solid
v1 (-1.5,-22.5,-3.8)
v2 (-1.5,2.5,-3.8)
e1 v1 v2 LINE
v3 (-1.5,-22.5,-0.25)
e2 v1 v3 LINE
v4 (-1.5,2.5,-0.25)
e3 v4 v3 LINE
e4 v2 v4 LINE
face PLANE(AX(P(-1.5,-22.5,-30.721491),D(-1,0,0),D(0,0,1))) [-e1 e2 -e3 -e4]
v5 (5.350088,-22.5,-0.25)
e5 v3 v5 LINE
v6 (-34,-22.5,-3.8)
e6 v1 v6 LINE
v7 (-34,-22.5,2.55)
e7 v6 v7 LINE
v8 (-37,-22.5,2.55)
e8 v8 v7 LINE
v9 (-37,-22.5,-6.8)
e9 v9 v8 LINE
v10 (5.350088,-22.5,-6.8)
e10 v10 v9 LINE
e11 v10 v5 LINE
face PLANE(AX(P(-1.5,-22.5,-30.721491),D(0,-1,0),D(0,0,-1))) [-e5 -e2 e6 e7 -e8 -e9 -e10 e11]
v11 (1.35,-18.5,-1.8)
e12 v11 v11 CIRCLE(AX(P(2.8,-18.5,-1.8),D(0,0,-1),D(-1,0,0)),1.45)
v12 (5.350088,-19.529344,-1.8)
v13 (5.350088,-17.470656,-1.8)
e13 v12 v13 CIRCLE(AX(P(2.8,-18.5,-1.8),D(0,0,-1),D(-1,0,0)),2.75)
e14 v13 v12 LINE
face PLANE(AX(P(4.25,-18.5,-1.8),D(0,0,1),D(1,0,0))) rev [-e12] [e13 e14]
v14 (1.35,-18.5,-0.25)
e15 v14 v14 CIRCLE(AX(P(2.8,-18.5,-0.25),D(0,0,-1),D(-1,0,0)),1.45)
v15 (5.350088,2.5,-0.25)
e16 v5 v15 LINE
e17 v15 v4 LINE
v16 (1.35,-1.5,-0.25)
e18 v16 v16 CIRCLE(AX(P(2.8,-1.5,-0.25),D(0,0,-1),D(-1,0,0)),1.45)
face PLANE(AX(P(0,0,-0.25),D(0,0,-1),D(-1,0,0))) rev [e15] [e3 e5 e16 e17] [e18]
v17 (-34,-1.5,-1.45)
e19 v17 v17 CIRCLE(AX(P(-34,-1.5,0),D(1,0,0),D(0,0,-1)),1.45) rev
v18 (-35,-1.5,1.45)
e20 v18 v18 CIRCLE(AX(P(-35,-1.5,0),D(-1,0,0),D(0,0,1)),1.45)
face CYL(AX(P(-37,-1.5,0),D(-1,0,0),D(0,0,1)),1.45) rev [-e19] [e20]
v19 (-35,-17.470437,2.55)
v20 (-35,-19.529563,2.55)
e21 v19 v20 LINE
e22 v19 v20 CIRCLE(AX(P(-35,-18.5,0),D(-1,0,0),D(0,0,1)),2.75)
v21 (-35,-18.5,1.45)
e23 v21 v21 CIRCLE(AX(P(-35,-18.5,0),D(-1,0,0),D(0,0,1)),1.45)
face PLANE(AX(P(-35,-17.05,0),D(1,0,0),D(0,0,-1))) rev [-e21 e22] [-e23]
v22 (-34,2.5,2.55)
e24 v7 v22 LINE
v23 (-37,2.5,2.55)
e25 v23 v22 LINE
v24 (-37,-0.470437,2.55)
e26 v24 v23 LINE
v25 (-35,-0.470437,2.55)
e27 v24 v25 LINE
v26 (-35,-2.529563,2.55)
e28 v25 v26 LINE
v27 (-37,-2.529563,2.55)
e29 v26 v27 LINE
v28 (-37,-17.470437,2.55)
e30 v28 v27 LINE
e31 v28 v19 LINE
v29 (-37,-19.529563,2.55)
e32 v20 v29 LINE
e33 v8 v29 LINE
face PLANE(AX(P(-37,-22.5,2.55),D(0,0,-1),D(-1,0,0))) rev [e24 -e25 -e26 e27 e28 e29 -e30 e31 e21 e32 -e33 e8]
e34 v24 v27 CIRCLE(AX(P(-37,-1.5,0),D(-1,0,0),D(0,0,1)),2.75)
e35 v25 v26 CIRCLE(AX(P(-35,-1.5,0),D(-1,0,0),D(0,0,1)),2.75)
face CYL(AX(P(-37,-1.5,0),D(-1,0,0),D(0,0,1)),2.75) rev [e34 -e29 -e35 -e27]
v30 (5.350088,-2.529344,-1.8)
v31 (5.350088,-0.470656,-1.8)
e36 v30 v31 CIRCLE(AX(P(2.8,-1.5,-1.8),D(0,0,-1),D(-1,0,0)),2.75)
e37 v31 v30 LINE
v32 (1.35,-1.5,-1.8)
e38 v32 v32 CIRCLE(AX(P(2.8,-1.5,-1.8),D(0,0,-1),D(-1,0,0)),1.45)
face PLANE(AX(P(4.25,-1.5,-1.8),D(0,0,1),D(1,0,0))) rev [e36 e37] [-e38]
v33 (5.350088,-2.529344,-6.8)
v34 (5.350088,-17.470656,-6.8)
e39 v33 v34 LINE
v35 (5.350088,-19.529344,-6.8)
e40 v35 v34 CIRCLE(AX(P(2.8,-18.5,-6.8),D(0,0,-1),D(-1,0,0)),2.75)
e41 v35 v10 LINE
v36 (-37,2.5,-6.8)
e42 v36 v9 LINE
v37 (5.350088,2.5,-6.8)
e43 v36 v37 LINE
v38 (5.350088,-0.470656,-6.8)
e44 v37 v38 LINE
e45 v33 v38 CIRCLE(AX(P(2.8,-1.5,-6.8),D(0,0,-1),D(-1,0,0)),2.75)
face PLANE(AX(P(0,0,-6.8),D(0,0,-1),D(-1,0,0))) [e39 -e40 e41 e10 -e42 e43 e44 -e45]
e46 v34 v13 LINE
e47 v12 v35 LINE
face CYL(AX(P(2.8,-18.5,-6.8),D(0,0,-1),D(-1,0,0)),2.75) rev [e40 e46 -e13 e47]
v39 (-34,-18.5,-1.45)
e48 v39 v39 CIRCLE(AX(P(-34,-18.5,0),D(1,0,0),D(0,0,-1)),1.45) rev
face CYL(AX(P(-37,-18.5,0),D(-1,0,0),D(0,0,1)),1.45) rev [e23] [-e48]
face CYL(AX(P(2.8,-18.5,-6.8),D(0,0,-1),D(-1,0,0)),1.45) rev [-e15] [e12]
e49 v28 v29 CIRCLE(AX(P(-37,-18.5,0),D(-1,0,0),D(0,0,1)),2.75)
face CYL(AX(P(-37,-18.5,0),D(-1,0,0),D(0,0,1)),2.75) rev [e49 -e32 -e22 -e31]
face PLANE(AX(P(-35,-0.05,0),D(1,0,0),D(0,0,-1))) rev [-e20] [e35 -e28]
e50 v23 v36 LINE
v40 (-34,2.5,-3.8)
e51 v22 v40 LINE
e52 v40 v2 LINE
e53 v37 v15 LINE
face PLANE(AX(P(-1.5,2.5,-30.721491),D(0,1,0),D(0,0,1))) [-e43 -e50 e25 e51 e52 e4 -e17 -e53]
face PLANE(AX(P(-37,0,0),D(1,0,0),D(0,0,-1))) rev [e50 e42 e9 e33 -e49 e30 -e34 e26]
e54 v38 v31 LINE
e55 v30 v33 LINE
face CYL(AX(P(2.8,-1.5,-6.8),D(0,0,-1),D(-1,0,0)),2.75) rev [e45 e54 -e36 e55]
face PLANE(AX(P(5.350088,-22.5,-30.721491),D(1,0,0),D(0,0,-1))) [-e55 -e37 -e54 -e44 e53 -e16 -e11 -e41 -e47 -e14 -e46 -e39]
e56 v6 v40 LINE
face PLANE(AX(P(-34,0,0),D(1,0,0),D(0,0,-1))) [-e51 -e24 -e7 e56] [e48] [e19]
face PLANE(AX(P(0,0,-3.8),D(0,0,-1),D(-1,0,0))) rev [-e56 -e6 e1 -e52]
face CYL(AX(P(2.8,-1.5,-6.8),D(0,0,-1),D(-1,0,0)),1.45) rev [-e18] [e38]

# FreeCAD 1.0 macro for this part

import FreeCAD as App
import Part
import Sketcher
from FreeCAD import Vector


def add_polygon(sketch, points):
    """Adds a closed chain of lines whose ends are joined by coincident constraints."""
    first, n = sketch.GeometryCount, len(points)
    for a, b in zip(points, points[1:] + points[:1]):
        sketch.addGeometry(Part.LineSegment(App.Vector(*a, 0), App.Vector(*b, 0)), False)
    for i in range(n):
        sketch.addConstraint(Sketcher.Constraint("Coincident", first + i, 2, first + (i + 1) % n, 1))

doc = App.newDocument("Part")
body = doc.addObject("PartDesign::Body", "Body")

# Sketch on XY plane
sketch1 = body.newObject("Sketcher::SketchObject", "Sketch")
sketch1.AttachmentSupport = (doc.getObject("XY_Plane"), [""])
sketch1.MapMode = "FlatFace"
sketch1.AttachmentOffset = App.Placement(Vector(0, 0, -0.25), App.Rotation())
add_polygon(sketch1, [(-1.5, 2.5), (-1.5, -22.5), (5.350088, -22.5), (5.350088, 2.5)])  # lines 0-3
sketch1.addConstraint([
    Sketcher.Constraint("Vertical", 0),
    Sketcher.Constraint("Horizontal", 1),
    Sketcher.Constraint("Vertical", 2),
    Sketcher.Constraint("Horizontal", 3),
    Sketcher.Constraint("DistanceY", 0, 2, 0, 1, 25.0),
    Sketcher.Constraint("DistanceX", 0, 2, -1, 1, 1.5),
    Sketcher.Constraint("DistanceY", 0, 2, -1, 1, 22.5),
    Sketcher.Constraint("DistanceX", 1, 1, 1, 2, 6.850088),
])
pad1 = body.newObject("PartDesign::Pad", "Pad")
pad1.Profile = sketch1
pad1.Length = 3.55
pad1.Reversed = True

# Sketch on XY plane
sketch2 = body.newObject("Sketcher::SketchObject", "Sketch001")
sketch2.AttachmentSupport = (doc.getObject("XY_Plane"), [""])
sketch2.MapMode = "FlatFace"
sketch2.AttachmentOffset = App.Placement(Vector(0, 0, -3.8), App.Rotation())
add_polygon(sketch2, [(5.350088, 2.5), (5.350088, -22.5), (-34, -22.5), (-34, 2.5)])  # lines 0-3
sketch2.addConstraint([
    Sketcher.Constraint("Vertical", 0),
    Sketcher.Constraint("Horizontal", 1),
    Sketcher.Constraint("Vertical", 2),
    Sketcher.Constraint("Horizontal", 3),
    Sketcher.Constraint("DistanceY", 0, 2, 0, 1, 25.0),
    Sketcher.Constraint("DistanceX", 1, 2, -1, 1, 34.0),
    Sketcher.Constraint("DistanceY", 0, 2, -1, 1, 22.5),
    Sketcher.Constraint("DistanceX", 1, 2, 1, 1, 39.350088),
])
pad2 = body.newObject("PartDesign::Pad", "Pad001")
pad2.Profile = sketch2
pad2.Length = 3
pad2.Reversed = True

# Sketch on YZ plane
sketch3 = body.newObject("Sketcher::SketchObject", "Sketch002")
sketch3.AttachmentSupport = (doc.getObject("YZ_Plane"), [""])
sketch3.MapMode = "FlatFace"
sketch3.AttachmentOffset = App.Placement(Vector(0, 0, -34), App.Rotation())
add_polygon(sketch3, [(2.5, -6.8), (-22.5, -6.8), (-22.5, 2.55), (2.5, 2.55)])  # lines 0-3
sketch3.addConstraint([
    Sketcher.Constraint("Horizontal", 0),
    Sketcher.Constraint("Vertical", 1),
    Sketcher.Constraint("Horizontal", 2),
    Sketcher.Constraint("Vertical", 3),
    Sketcher.Constraint("DistanceX", 0, 2, 0, 1, 25.0),
    Sketcher.Constraint("DistanceY", 1, 1, 1, 2, 9.35),
    Sketcher.Constraint("DistanceX", 0, 2, -1, 1, 22.5),
    Sketcher.Constraint("DistanceY", 0, 2, -1, 1, 6.8),
])
pad3 = body.newObject("PartDesign::Pad", "Pad002")
pad3.Profile = sketch3
pad3.Length = 3
pad3.Reversed = True

# Sketch on YZ plane
sketch4 = body.newObject("Sketcher::SketchObject", "Sketch003")
sketch4.AttachmentSupport = (doc.getObject("YZ_Plane"), [""])
sketch4.MapMode = "FlatFace"
sketch4.AttachmentOffset = App.Placement(Vector(0, 0, -37), App.Rotation())
sketch4.addGeometry([
    Part.Circle(Vector(-1.5, 0, 0), Vector(0, 0, 1), 1.45),
    Part.Circle(Vector(-18.5, 0, 0), Vector(0, 0, 1), 1.45),
], False)
sketch4.addConstraint([
    Sketcher.Constraint("Equal", 0, 1),
    Sketcher.Constraint("PointOnObject", 0, 3, -1),
    Sketcher.Constraint("PointOnObject", 1, 3, -1),
    Sketcher.Constraint("Diameter", 0, 2.9),
    Sketcher.Constraint("DistanceX", 1, 3, 0, 3, 17.0),
    Sketcher.Constraint("DistanceX", 0, 3, -1, 1, 1.5),
])
doc.recompute()
hole = body.newObject("PartDesign::Hole", "Hole")
hole.Profile = sketch4
hole.ThreadType = "None"
hole.Diameter = 2.9
hole.DepthType = "Dimension"
hole.Depth = 3
hole.DrillPoint = "Angled"
hole.DrillPointAngle = 118
hole.HoleCutType = "Counterbore"
hole.HoleCutDiameter = 5.5
hole.HoleCutDepth = 2
hole.Reversed = True

# Sketch on XY plane
sketch5 = body.newObject("Sketcher::SketchObject", "Sketch004")
sketch5.AttachmentSupport = (doc.getObject("XY_Plane"), [""])
sketch5.MapMode = "FlatFace"
sketch5.AttachmentOffset = App.Placement(Vector(0, 0, -6.8), App.Rotation())
sketch5.addGeometry([
    Part.Circle(Vector(2.8, -1.5, 0), Vector(0, 0, 1), 1.45),
    Part.Circle(Vector(2.8, -18.5, 0), Vector(0, 0, 1), 1.45),
], False)
sketch5.addConstraint([
    Sketcher.Constraint("Equal", 0, 1),
    Sketcher.Constraint("Vertical", 0, 3, 1, 3),
    Sketcher.Constraint("Diameter", 0, 2.9),
    Sketcher.Constraint("DistanceY", 1, 3, 0, 3, 17.0),
    Sketcher.Constraint("DistanceX", -1, 1, 0, 3, 2.8),
    Sketcher.Constraint("DistanceY", 0, 3, -1, 1, 1.5),
])
doc.recompute()
hole2 = body.newObject("PartDesign::Hole", "Hole001")
hole2.Profile = sketch5
hole2.ThreadType = "None"
hole2.Diameter = 2.9
hole2.DepthType = "ThroughAll"
hole2.HoleCutType = "Counterbore"
hole2.HoleCutDiameter = 5.5
hole2.HoleCutDepth = 5
hole2.Reversed = True

doc.recompute()
